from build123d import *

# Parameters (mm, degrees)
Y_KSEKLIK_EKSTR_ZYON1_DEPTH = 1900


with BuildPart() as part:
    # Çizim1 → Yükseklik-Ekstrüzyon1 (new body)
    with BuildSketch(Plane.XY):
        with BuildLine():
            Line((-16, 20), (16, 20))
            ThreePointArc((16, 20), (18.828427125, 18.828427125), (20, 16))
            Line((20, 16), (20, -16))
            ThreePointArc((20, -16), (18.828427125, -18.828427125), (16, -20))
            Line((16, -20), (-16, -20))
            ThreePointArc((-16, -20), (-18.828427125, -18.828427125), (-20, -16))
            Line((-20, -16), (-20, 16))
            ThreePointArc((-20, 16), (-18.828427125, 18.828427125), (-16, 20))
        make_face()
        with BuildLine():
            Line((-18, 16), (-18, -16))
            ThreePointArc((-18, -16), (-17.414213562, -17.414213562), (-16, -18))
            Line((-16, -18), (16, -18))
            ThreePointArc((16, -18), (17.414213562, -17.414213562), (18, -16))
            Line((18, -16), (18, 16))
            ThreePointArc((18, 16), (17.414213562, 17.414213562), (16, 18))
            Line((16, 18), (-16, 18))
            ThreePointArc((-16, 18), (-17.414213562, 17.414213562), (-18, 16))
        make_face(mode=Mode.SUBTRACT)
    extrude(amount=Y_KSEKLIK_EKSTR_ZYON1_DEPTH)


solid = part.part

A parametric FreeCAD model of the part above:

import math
import FreeCAD as App
import Part
import Sketcher

doc = App.newDocument("Part")
params = doc.addObject("Spreadsheet::Sheet", "Params")
for row, (alias, value) in enumerate([
    ("sketch1_radius", "4 mm"),
    ("sketch1_radius2", "2 mm"),
    ("sketch1_width", "32 mm"),
    ("pad1_length", "1900 mm"),
], start=1):
    params.set(f"A{row}", alias)
    params.set(f"B{row}", "=" + value)
    params.setAlias(f"B{row}", alias)

body = doc.addObject("PartDesign::Body", "Body")

# Sketch on XY plane
sketch1 = body.newObject("Sketcher::SketchObject", "Sketch")
sketch1.AttachmentSupport = (doc.getObject("XY_Plane"), [""])
sketch1.MapMode = "FlatFace"
sketch1.addGeometry([
    Part.LineSegment(App.Vector(16, 20, 0), App.Vector(-16, 20, 0)),  # 0
    Part.ArcOfCircle(Part.Circle(App.Vector(-16, 16, 0), App.Vector(0, 0, 1), 4), math.radians(90), math.radians(180)),  # 1
    Part.LineSegment(App.Vector(-20, 16, 0), App.Vector(-20, -16, 0)),  # 2
    Part.ArcOfCircle(Part.Circle(App.Vector(-16, -16, 0), App.Vector(0, 0, 1), 4), math.radians(180), math.radians(270)),  # 3
    Part.LineSegment(App.Vector(-16, -20, 0), App.Vector(16, -20, 0)),  # 4
    Part.ArcOfCircle(Part.Circle(App.Vector(16, -16, 0), App.Vector(0, 0, 1), 4), math.radians(-90), math.radians(0)),  # 5
    Part.LineSegment(App.Vector(20, -16, 0), App.Vector(20, 16, 0)),  # 6
    Part.ArcOfCircle(Part.Circle(App.Vector(16, 16, 0), App.Vector(0, 0, 1), 4), math.radians(0), math.radians(90)),  # 7
    Part.ArcOfCircle(Part.Circle(App.Vector(-16, 16, 0), App.Vector(0, 0, 1), 2), math.radians(90), math.radians(180)),  # 8
    Part.LineSegment(App.Vector(-16, 18, 0), App.Vector(16, 18, 0)),  # 9
    Part.ArcOfCircle(Part.Circle(App.Vector(16, 16, 0), App.Vector(0, 0, 1), 2), math.radians(0), math.radians(90)),  # 10
    Part.LineSegment(App.Vector(18, 16, 0), App.Vector(18, -16, 0)),  # 11
    Part.ArcOfCircle(Part.Circle(App.Vector(16, -16, 0), App.Vector(0, 0, 1), 2), math.radians(-90), math.radians(0)),  # 12
    Part.LineSegment(App.Vector(16, -18, 0), App.Vector(-16, -18, 0)),  # 13
    Part.ArcOfCircle(Part.Circle(App.Vector(-16, -16, 0), App.Vector(0, 0, 1), 2), math.radians(-180), math.radians(-90)),  # 14
    Part.LineSegment(App.Vector(-18, -16, 0), App.Vector(-18, 16, 0)),  # 15
], False)
sketch1.addConstraint([
    Sketcher.Constraint("Tangent", 0, 2, 1, 1),
    Sketcher.Constraint("Tangent", 1, 2, 2, 1),
    Sketcher.Constraint("Tangent", 2, 2, 3, 1),
    Sketcher.Constraint("Tangent", 3, 2, 4, 1),
    Sketcher.Constraint("Tangent", 4, 2, 5, 1),
    Sketcher.Constraint("Tangent", 5, 2, 6, 1),
    Sketcher.Constraint("Tangent", 6, 2, 7, 1),
    Sketcher.Constraint("Tangent", 7, 2, 0, 1),
    Sketcher.Constraint("Tangent", 8, 1, 9, 1),
    Sketcher.Constraint("Tangent", 9, 2, 10, 2),
    Sketcher.Constraint("Tangent", 10, 1, 11, 1),
    Sketcher.Constraint("Tangent", 11, 2, 12, 2),
    Sketcher.Constraint("Tangent", 12, 1, 13, 1),
    Sketcher.Constraint("Tangent", 13, 2, 14, 2),
    Sketcher.Constraint("Tangent", 14, 1, 15, 1),
    Sketcher.Constraint("Tangent", 15, 2, 8, 2),
    Sketcher.Constraint("Horizontal", 0),
    Sketcher.Constraint("Vertical", 2),
    Sketcher.Constraint("Horizontal", 4),
    Sketcher.Constraint("Vertical", 6),
    Sketcher.Constraint("Horizontal", 9),
    Sketcher.Constraint("Vertical", 11),
    Sketcher.Constraint("Horizontal", 13),
    Sketcher.Constraint("Vertical", 15),
    Sketcher.Constraint("Coincident", 8, 3, 1, 3),
    Sketcher.Constraint("Coincident", 10, 3, 7, 3),
    Sketcher.Constraint("Coincident", 12, 3, 5, 3),
    Sketcher.Constraint("Equal", 1, 3),
    Sketcher.Constraint("Equal", 3, 5),
    Sketcher.Constraint("Equal", 5, 7),
    Sketcher.Constraint("Equal", 12, 14),
    Sketcher.Constraint("Symmetric", 1, 3, 5, 3, -1, 1),
    Sketcher.Constraint("Equal", 13, 2),
    Sketcher.Constraint("Radius", 1, 4.0),
    Sketcher.Constraint("Radius", 8, 2.0),
    Sketcher.Constraint("DistanceX", 0, 2, 0, 1, 32.0),
])
sketch1.setExpression("Constraints[33]", "Params.sketch1_radius")
sketch1.setExpression("Constraints[34]", "Params.sketch1_radius2")
sketch1.setExpression("Constraints[35]", "Params.sketch1_width")
pad1 = body.newObject("PartDesign::Pad", "Pad")
pad1.Profile = sketch1
pad1.setExpression("Length", "Params.pad1_length")

doc.recompute()
